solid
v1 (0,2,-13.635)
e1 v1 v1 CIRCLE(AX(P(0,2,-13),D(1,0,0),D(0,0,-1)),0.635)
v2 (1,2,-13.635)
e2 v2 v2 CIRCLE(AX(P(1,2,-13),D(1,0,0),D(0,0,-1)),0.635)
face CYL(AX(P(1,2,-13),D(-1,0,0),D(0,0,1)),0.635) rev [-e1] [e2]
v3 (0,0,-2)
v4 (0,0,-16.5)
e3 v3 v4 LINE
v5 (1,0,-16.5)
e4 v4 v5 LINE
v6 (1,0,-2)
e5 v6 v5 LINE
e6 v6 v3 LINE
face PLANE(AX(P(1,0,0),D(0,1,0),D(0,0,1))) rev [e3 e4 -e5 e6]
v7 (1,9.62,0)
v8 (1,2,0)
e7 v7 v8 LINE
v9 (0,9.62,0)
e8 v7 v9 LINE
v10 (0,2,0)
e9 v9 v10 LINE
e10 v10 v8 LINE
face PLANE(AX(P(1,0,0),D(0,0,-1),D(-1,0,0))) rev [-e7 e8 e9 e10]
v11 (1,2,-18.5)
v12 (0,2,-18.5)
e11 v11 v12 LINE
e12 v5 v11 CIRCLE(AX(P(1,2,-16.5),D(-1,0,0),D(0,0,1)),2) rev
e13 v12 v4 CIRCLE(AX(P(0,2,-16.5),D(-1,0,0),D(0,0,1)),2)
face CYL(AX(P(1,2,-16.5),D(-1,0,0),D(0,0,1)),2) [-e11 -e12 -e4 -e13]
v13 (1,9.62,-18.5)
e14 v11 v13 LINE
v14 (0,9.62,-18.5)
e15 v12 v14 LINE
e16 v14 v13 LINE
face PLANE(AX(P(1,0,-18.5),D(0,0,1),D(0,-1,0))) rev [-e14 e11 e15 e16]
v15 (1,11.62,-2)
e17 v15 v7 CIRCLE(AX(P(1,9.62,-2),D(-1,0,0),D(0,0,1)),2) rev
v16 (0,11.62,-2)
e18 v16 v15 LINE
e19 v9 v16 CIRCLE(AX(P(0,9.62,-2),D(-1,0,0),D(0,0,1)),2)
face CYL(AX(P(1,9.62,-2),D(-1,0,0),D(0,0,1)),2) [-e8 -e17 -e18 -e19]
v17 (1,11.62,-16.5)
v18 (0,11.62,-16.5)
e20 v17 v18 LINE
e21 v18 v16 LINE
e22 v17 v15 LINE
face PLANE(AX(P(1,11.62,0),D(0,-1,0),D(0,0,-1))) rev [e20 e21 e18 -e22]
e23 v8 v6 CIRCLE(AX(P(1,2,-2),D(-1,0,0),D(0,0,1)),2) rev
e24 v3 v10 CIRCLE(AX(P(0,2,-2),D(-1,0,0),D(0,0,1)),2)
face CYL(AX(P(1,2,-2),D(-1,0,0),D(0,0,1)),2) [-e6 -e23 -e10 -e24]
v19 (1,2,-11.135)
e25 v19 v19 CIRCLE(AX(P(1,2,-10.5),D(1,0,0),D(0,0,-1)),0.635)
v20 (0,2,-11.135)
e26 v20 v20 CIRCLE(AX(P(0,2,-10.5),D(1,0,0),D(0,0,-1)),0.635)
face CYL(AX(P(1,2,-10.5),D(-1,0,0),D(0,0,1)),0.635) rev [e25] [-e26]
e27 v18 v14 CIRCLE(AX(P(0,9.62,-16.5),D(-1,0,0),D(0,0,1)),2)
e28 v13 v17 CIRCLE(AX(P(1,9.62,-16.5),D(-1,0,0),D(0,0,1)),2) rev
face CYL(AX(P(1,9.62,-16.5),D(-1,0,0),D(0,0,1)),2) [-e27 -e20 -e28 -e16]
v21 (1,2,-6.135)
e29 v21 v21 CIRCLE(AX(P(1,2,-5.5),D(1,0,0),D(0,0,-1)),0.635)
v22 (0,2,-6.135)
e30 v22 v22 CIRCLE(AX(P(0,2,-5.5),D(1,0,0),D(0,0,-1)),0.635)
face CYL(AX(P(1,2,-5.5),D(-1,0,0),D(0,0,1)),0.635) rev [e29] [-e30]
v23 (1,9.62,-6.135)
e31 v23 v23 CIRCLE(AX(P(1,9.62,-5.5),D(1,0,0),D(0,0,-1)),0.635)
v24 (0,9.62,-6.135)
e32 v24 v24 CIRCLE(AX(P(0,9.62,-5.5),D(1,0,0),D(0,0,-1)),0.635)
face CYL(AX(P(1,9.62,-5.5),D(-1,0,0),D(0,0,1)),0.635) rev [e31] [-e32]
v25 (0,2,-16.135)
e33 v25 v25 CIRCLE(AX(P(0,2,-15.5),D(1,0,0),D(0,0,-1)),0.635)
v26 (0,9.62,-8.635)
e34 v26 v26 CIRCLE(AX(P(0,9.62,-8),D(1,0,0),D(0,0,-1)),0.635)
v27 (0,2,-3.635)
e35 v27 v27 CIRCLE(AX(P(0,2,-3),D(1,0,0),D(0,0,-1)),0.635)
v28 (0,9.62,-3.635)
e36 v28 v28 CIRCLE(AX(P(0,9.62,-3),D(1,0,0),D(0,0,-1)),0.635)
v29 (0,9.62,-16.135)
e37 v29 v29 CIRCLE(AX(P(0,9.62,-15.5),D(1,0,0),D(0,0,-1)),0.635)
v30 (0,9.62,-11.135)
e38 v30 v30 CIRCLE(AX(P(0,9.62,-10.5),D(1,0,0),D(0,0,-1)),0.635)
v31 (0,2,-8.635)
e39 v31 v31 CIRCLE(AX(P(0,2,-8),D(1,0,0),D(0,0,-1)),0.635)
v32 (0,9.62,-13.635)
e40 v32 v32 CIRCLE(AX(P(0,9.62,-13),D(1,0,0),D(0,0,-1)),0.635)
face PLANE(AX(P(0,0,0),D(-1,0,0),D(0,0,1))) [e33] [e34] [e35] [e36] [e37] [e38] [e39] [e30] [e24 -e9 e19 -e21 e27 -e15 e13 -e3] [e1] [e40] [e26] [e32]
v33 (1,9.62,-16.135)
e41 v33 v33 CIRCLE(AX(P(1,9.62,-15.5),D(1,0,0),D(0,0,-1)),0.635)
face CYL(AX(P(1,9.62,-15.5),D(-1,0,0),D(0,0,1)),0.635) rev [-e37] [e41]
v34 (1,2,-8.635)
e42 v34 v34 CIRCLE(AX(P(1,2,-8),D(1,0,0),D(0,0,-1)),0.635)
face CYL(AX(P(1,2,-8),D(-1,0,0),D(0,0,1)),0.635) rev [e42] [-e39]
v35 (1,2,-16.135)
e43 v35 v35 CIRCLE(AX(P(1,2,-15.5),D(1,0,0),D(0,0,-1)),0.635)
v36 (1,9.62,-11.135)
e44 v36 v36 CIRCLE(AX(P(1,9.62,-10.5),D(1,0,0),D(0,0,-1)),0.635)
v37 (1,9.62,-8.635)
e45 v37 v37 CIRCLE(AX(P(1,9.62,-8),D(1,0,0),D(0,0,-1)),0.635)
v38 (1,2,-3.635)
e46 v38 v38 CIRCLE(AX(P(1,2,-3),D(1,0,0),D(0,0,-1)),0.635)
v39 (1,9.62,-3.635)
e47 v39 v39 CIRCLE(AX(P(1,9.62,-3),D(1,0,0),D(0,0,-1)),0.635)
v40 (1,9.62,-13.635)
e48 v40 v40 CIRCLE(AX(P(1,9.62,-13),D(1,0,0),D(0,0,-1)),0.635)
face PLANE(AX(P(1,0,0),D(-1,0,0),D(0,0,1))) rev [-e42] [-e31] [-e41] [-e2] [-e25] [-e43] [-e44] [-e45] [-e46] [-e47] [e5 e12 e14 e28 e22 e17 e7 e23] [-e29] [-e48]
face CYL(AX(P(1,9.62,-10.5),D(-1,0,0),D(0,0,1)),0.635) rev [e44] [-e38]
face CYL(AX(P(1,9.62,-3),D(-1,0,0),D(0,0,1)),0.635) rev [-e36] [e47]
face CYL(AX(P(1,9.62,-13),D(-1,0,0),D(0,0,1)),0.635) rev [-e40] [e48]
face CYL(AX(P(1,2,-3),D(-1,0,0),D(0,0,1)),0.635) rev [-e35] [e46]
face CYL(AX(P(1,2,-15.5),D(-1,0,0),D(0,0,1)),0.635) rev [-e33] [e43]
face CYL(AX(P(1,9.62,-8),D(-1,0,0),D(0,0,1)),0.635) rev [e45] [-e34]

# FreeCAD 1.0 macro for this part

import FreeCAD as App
import Part
import Sketcher
from FreeCAD import Vector
Q = App.Units.Quantity


def edges_at(feature, points):
    """Names of the edges that pass closest to the given points."""
    edges = feature.Shape.Edges
    near = lambda p: min(range(len(edges)), key=lambda i: edges[i].distToShape(Part.Vertex(*p))[0])
    return sorted({f"Edge{near(p) + 1}" for p in points})


def add_polygon(sketch, points):
    """Adds a closed chain of lines whose ends are joined by coincident constraints."""
    first, n = sketch.GeometryCount, len(points)
    for a, b in zip(points, points[1:] + points[:1]):
        sketch.addGeometry(Part.LineSegment(App.Vector(*a, 0), App.Vector(*b, 0)), False)
    for i in range(n):
        sketch.addConstraint(Sketcher.Constraint("Coincident", first + i, 2, first + (i + 1) % n, 1))

doc = App.newDocument("Part")
body = doc.addObject("PartDesign::Body", "Body")

sketch1 = doc.addObject("Sketcher::SketchObject", "Sketch")
body.addObject(sketch1)
sketch1.AttachmentSupport = (doc.YZ_Plane, [""])
sketch1.MapMode = "FlatFace"
add_polygon(sketch1, [(11.6, 0), (0, 0), (0, -18.5), (11.6, -18.5)])
sketch1.addGeometry(Part.Circle(Vector(2, -3, 0), Vector(0, 0, 1), 0.6), False)
sketch1.addGeometry(Part.Circle(Vector(2, -5.5, 0), Vector(0, 0, 1), 0.6), False)
sketch1.addGeometry(Part.Circle(Vector(2, -8, 0), Vector(0, 0, 1), 0.6), False)
sketch1.addGeometry(Part.Circle(Vector(2, -10.5, 0), Vector(0, 0, 1), 0.6), False)
sketch1.addGeometry(Part.Circle(Vector(2, -13, 0), Vector(0, 0, 1), 0.6), False)
sketch1.addGeometry(Part.Circle(Vector(2, -15.5, 0), Vector(0, 0, 1), 0.6), False)
sketch1.addGeometry(Part.Circle(Vector(9.6, -3, 0), Vector(0, 0, 1), 0.6), False)
sketch1.addGeometry(Part.Circle(Vector(9.6, -5.5, 0), Vector(0, 0, 1), 0.6), False)
sketch1.addGeometry(Part.Circle(Vector(9.6, -8, 0), Vector(0, 0, 1), 0.6), False)
sketch1.addGeometry(Part.Circle(Vector(9.6, -10.5, 0), Vector(0, 0, 1), 0.6), False)
sketch1.addGeometry(Part.Circle(Vector(9.6, -13, 0), Vector(0, 0, 1), 0.6), False)
sketch1.addGeometry(Part.Circle(Vector(9.6, -15.5, 0), Vector(0, 0, 1), 0.6), False)
sketch1.addConstraint([
    Sketcher.Constraint("Horizontal", 0),
    Sketcher.Constraint("Vertical", 1),
    Sketcher.Constraint("Horizontal", 2),
    Sketcher.Constraint("Vertical", 3),
    Sketcher.Constraint("Coincident", 0, 2, -1, 1),
    Sketcher.Constraint("Equal", 4, 5),
    Sketcher.Constraint("Equal", 5, 6),
    Sketcher.Constraint("Equal", 6, 7),
    Sketcher.Constraint("Equal", 7, 8),
    Sketcher.Constraint("Equal", 8, 9),
    Sketcher.Constraint("Equal", 9, 10),
    Sketcher.Constraint("Equal", 10, 11),
    Sketcher.Constraint("Equal", 11, 12),
    Sketcher.Constraint("Equal", 12, 13),
    Sketcher.Constraint("Equal", 13, 14),
    Sketcher.Constraint("Equal", 14, 15),
    Sketcher.Constraint("Horizontal", 4, 3, 10, 3),
    Sketcher.Constraint("Horizontal", 5, 3, 11, 3),
    Sketcher.Constraint("Horizontal", 6, 3, 12, 3),
    Sketcher.Constraint("Horizontal", 7, 3, 13, 3),
    Sketcher.Constraint("Horizontal", 8, 3, 14, 3),
    Sketcher.Constraint("Horizontal", 9, 3, 15, 3),
    Sketcher.Constraint("Vertical", 4, 3, 5, 3),
    Sketcher.Constraint("Vertical", 5, 3, 6, 3),
    Sketcher.Constraint("Vertical", 6, 3, 7, 3),
    Sketcher.Constraint("Vertical", 7, 3, 8, 3),
    Sketcher.Constraint("Vertical", 8, 3, 9, 3),
    Sketcher.Constraint("Vertical", 10, 3, 11, 3),
    Sketcher.Constraint("Vertical", 11, 3, 12, 3),
    Sketcher.Constraint("Vertical", 12, 3, 13, 3),
    Sketcher.Constraint("Vertical", 13, 3, 14, 3),
    Sketcher.Constraint("Vertical", 14, 3, 15, 3),
    Sketcher.Constraint("Diameter", 4, Q("1.27 mm")),
    Sketcher.Constraint("DistanceY", 1, 2, 1, 1, Q("18.5 mm")),
    Sketcher.Constraint("DistanceX", -1, 1, 4, 3, Q("2 mm")),
    Sketcher.Constraint("DistanceY", 4, 3, -1, 1, Q("3 mm")),
    Sketcher.Constraint("DistanceY", 6, 3, -1, 1, Q("8 mm")),
    Sketcher.Constraint("DistanceY", 8, 3, -1, 1, Q("13 mm")),
    Sketcher.Constraint("DistanceY", 7, 3, 5, 3, Q("5 mm")),
    Sketcher.Constraint("DistanceY", 9, 3, 7, 3, Q("5 mm")),
    Sketcher.Constraint("DistanceY", 1, 2, 9, 3, Q("3 mm")),
    Sketcher.Constraint("DistanceX", 15, 3, 2, 2, Q("2 mm")),
    Sketcher.Constraint("DistanceX", 0, 2, 0, 1, Q("11.62 mm")),
])
pad1 = doc.addObject("PartDesign::Pad", "Pad")
body.addObject(pad1)
pad1.Profile = sketch1
pad1.Length = 1
doc.recompute()

fillet = doc.addObject("PartDesign::Fillet", "Fillet")
body.addObject(fillet)
fillet.Base = (pad1, edges_at(pad1, [
    (0.5, 11.62, 0),
    (0.5, 11.62, -18.5),
    (0.5, 0, -18.5),
    (0.5, 0, 0),
]))
fillet.Radius = 2

doc.recompute()
